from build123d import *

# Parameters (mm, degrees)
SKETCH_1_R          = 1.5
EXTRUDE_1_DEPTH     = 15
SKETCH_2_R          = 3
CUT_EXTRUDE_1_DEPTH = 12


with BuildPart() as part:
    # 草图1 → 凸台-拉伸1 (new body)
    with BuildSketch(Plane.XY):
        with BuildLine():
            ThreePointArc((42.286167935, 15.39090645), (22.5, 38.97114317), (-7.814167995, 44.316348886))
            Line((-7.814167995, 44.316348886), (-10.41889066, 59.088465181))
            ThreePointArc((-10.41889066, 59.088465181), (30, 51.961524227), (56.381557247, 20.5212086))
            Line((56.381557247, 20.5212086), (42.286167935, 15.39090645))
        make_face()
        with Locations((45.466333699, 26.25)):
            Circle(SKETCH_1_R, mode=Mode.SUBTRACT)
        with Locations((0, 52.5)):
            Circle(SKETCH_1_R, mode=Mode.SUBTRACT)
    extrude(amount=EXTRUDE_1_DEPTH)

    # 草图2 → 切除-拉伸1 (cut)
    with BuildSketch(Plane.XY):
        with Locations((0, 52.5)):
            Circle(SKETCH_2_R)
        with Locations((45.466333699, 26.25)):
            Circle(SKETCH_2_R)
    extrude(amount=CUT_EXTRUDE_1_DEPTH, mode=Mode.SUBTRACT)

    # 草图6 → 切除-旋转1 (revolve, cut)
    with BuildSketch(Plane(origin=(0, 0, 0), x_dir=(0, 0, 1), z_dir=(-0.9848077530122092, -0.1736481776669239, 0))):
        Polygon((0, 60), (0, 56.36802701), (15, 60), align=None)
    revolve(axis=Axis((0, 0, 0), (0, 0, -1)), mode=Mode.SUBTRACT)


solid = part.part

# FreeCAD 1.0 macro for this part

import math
import FreeCAD as App
import Part
import Sketcher
Q = App.Units.Quantity

doc = App.newDocument("Part")
params = doc.addObject("Spreadsheet::Sheet", "Params")
for row, (alias, value) in enumerate([
    ("sketch1_diameter", "3 mm"),
    ("sketch1_radius", "45 mm"),
    ("sketch1_radius2", "60 mm"),
    ("pad1_length", "15 mm"),
    ("sketch2_diameter", "6 mm"),
    ("pocket1_length", "12 mm"),
    ("sketch3_width", "15 mm"),
    ("groove_angle", "360 deg"),
], start=1):
    params.set(f"A{row}", alias)
    params.set(f"B{row}", "=" + value)
    params.setAlias(f"B{row}", alias)

body = doc.addObject("PartDesign::Body", "Body")

# Sketch on XY plane
sketch1 = body.newObject("Sketcher::SketchObject", "Sketch")
sketch1.AttachmentSupport = (doc.getObject("XY_Plane"), [""])
sketch1.MapMode = "FlatFace"
sketch1.addGeometry([
    Part.ArcOfCircle(Part.Circle(App.Vector(0, 0, 0), App.Vector(0, 0, 1), 45), math.radians(20), math.radians(100)),  # 0
    Part.LineSegment(App.Vector(42.3, 15.4, 0), App.Vector(56.4, 20.5, 0)),  # 1
    Part.ArcOfCircle(Part.Circle(App.Vector(0, 0, 0), App.Vector(0, 0, 1), 60), math.radians(20), math.radians(100)),  # 2
    Part.LineSegment(App.Vector(-10.4, 59.1, 0), App.Vector(-7.8, 44.3, 0)),  # 3
    Part.Circle(App.Vector(45.5, 26.2, 0), App.Vector(0, 0, 1), 1.5),  # 4
    Part.Circle(App.Vector(0, 52.5, 0), App.Vector(0, 0, 1), 1.5),  # 5
], False)
sketch1.addConstraint([
    Sketcher.Constraint("Coincident", 0, 1, 1, 1),
    Sketcher.Constraint("Coincident", 1, 2, 2, 1),
    Sketcher.Constraint("Coincident", 2, 2, 3, 1),
    Sketcher.Constraint("Coincident", 3, 2, 0, 2),
    Sketcher.Constraint("Coincident", 0, 3, -1, 1),
    Sketcher.Constraint("Coincident", 2, 3, -1, 1),
    Sketcher.Constraint("Equal", 4, 5),
    Sketcher.Constraint("PointOnObject", 5, 3, -2),
    Sketcher.Constraint("Diameter", 4, 3.0),
    Sketcher.Constraint("Radius", 0, 45.0),
    Sketcher.Constraint("Radius", 2, 60.0),
    Sketcher.Constraint("Angle", 1, Q("20 deg")),
    Sketcher.Constraint("Angle", 3, Q("-80 deg")),
    Sketcher.Constraint("DistanceY", -1, 1, 5, 3, 52.5),
    Sketcher.Constraint("DistanceY", -1, 1, 4, 3, 26.25),
    Sketcher.Constraint("DistanceX", 3, 2, 4, 3, 53.280502),
    Sketcher.Constraint("DistanceY", -1, 1, 1, 2, 20.521209),
    Sketcher.Constraint("DistanceX", 2, 2, -1, 1, 10.418891),
])
sketch1.setExpression("Constraints[8]", "Params.sketch1_diameter")
sketch1.setExpression("Constraints[9]", "Params.sketch1_radius")
sketch1.setExpression("Constraints[10]", "Params.sketch1_radius2")
pad1 = body.newObject("PartDesign::Pad", "Pad")
pad1.Profile = sketch1
pad1.setExpression("Length", "Params.pad1_length")

# Sketch on XY plane
sketch2 = body.newObject("Sketcher::SketchObject", "Sketch001")
sketch2.AttachmentSupport = (doc.getObject("XY_Plane"), [""])
sketch2.MapMode = "FlatFace"
sketch2.addGeometry([
    Part.Circle(App.Vector(0, 52.5, 0), App.Vector(0, 0, 1), 3),
    Part.Circle(App.Vector(45.5, 26.2, 0), App.Vector(0, 0, 1), 3),
], False)
sketch2.addConstraint([
    Sketcher.Constraint("Equal", 0, 1),
    Sketcher.Constraint("PointOnObject", 0, 3, -2),
    Sketcher.Constraint("Diameter", 0, 6.0),
    Sketcher.Constraint("DistanceY", -1, 1, 0, 3, 52.5),
    Sketcher.Constraint("DistanceY", -1, 1, 1, 3, 26.25),
    Sketcher.Constraint("DistanceX", -1, 1, 1, 3, 45.466334),
])
sketch2.setExpression("Constraints[2]", "Params.sketch2_diameter")
pocket1 = body.newObject("PartDesign::Pocket", "Pocket")
pocket1.Profile = sketch2
pocket1.setExpression("Length", "Params.pocket1_length")
pocket1.Reversed = True

# Sketch on an angled plane
sketch3 = body.newObject("Sketcher::SketchObject", "Sketch002")
sketch3.Placement = App.Placement(App.Vector(0, 0, 0), App.Rotation(App.Vector(0, 0, 1), App.Vector(-0.173648178, 0.984807753, 0), App.Vector(-0.984807753, -0.173648178, 0), "ZXY"))
sketch3.addGeometry([
    Part.LineSegment(App.Vector(0, 60, 0), App.Vector(0, 56.4, 0)),
    Part.LineSegment(App.Vector(0, 56.4, 0), App.Vector(15, 60, 0)),
    Part.LineSegment(App.Vector(15, 60, 0), App.Vector(0, 60, 0)),
], False)
sketch3.addConstraint([
    Sketcher.Constraint("Coincident", 0, 2, 1, 1),
    Sketcher.Constraint("Coincident", 1, 2, 2, 1),
    Sketcher.Constraint("Coincident", 2, 2, 0, 1),
    Sketcher.Constraint("Vertical", 0),
    Sketcher.Constraint("Horizontal", 2),
    Sketcher.Constraint("PointOnObject", 0, 2, -2),
    Sketcher.Constraint("DistanceX", 2, 2, 2, 1, 15.0),
    Sketcher.Constraint("DistanceY", -1, 1, 1, 2, 60.0),
    Sketcher.Constraint("DistanceY", 0, 2, 0, 1, 3.631973),
])
sketch3.setExpression("Constraints[6]", "Params.sketch3_width")
groove = body.newObject("PartDesign::Groove", "Groove")
groove.Profile = sketch3
groove.ReferenceAxis = (sketch3, ["H_Axis"])
groove.setExpression("Angle", "Params.groove_angle")

doc.recompute()
